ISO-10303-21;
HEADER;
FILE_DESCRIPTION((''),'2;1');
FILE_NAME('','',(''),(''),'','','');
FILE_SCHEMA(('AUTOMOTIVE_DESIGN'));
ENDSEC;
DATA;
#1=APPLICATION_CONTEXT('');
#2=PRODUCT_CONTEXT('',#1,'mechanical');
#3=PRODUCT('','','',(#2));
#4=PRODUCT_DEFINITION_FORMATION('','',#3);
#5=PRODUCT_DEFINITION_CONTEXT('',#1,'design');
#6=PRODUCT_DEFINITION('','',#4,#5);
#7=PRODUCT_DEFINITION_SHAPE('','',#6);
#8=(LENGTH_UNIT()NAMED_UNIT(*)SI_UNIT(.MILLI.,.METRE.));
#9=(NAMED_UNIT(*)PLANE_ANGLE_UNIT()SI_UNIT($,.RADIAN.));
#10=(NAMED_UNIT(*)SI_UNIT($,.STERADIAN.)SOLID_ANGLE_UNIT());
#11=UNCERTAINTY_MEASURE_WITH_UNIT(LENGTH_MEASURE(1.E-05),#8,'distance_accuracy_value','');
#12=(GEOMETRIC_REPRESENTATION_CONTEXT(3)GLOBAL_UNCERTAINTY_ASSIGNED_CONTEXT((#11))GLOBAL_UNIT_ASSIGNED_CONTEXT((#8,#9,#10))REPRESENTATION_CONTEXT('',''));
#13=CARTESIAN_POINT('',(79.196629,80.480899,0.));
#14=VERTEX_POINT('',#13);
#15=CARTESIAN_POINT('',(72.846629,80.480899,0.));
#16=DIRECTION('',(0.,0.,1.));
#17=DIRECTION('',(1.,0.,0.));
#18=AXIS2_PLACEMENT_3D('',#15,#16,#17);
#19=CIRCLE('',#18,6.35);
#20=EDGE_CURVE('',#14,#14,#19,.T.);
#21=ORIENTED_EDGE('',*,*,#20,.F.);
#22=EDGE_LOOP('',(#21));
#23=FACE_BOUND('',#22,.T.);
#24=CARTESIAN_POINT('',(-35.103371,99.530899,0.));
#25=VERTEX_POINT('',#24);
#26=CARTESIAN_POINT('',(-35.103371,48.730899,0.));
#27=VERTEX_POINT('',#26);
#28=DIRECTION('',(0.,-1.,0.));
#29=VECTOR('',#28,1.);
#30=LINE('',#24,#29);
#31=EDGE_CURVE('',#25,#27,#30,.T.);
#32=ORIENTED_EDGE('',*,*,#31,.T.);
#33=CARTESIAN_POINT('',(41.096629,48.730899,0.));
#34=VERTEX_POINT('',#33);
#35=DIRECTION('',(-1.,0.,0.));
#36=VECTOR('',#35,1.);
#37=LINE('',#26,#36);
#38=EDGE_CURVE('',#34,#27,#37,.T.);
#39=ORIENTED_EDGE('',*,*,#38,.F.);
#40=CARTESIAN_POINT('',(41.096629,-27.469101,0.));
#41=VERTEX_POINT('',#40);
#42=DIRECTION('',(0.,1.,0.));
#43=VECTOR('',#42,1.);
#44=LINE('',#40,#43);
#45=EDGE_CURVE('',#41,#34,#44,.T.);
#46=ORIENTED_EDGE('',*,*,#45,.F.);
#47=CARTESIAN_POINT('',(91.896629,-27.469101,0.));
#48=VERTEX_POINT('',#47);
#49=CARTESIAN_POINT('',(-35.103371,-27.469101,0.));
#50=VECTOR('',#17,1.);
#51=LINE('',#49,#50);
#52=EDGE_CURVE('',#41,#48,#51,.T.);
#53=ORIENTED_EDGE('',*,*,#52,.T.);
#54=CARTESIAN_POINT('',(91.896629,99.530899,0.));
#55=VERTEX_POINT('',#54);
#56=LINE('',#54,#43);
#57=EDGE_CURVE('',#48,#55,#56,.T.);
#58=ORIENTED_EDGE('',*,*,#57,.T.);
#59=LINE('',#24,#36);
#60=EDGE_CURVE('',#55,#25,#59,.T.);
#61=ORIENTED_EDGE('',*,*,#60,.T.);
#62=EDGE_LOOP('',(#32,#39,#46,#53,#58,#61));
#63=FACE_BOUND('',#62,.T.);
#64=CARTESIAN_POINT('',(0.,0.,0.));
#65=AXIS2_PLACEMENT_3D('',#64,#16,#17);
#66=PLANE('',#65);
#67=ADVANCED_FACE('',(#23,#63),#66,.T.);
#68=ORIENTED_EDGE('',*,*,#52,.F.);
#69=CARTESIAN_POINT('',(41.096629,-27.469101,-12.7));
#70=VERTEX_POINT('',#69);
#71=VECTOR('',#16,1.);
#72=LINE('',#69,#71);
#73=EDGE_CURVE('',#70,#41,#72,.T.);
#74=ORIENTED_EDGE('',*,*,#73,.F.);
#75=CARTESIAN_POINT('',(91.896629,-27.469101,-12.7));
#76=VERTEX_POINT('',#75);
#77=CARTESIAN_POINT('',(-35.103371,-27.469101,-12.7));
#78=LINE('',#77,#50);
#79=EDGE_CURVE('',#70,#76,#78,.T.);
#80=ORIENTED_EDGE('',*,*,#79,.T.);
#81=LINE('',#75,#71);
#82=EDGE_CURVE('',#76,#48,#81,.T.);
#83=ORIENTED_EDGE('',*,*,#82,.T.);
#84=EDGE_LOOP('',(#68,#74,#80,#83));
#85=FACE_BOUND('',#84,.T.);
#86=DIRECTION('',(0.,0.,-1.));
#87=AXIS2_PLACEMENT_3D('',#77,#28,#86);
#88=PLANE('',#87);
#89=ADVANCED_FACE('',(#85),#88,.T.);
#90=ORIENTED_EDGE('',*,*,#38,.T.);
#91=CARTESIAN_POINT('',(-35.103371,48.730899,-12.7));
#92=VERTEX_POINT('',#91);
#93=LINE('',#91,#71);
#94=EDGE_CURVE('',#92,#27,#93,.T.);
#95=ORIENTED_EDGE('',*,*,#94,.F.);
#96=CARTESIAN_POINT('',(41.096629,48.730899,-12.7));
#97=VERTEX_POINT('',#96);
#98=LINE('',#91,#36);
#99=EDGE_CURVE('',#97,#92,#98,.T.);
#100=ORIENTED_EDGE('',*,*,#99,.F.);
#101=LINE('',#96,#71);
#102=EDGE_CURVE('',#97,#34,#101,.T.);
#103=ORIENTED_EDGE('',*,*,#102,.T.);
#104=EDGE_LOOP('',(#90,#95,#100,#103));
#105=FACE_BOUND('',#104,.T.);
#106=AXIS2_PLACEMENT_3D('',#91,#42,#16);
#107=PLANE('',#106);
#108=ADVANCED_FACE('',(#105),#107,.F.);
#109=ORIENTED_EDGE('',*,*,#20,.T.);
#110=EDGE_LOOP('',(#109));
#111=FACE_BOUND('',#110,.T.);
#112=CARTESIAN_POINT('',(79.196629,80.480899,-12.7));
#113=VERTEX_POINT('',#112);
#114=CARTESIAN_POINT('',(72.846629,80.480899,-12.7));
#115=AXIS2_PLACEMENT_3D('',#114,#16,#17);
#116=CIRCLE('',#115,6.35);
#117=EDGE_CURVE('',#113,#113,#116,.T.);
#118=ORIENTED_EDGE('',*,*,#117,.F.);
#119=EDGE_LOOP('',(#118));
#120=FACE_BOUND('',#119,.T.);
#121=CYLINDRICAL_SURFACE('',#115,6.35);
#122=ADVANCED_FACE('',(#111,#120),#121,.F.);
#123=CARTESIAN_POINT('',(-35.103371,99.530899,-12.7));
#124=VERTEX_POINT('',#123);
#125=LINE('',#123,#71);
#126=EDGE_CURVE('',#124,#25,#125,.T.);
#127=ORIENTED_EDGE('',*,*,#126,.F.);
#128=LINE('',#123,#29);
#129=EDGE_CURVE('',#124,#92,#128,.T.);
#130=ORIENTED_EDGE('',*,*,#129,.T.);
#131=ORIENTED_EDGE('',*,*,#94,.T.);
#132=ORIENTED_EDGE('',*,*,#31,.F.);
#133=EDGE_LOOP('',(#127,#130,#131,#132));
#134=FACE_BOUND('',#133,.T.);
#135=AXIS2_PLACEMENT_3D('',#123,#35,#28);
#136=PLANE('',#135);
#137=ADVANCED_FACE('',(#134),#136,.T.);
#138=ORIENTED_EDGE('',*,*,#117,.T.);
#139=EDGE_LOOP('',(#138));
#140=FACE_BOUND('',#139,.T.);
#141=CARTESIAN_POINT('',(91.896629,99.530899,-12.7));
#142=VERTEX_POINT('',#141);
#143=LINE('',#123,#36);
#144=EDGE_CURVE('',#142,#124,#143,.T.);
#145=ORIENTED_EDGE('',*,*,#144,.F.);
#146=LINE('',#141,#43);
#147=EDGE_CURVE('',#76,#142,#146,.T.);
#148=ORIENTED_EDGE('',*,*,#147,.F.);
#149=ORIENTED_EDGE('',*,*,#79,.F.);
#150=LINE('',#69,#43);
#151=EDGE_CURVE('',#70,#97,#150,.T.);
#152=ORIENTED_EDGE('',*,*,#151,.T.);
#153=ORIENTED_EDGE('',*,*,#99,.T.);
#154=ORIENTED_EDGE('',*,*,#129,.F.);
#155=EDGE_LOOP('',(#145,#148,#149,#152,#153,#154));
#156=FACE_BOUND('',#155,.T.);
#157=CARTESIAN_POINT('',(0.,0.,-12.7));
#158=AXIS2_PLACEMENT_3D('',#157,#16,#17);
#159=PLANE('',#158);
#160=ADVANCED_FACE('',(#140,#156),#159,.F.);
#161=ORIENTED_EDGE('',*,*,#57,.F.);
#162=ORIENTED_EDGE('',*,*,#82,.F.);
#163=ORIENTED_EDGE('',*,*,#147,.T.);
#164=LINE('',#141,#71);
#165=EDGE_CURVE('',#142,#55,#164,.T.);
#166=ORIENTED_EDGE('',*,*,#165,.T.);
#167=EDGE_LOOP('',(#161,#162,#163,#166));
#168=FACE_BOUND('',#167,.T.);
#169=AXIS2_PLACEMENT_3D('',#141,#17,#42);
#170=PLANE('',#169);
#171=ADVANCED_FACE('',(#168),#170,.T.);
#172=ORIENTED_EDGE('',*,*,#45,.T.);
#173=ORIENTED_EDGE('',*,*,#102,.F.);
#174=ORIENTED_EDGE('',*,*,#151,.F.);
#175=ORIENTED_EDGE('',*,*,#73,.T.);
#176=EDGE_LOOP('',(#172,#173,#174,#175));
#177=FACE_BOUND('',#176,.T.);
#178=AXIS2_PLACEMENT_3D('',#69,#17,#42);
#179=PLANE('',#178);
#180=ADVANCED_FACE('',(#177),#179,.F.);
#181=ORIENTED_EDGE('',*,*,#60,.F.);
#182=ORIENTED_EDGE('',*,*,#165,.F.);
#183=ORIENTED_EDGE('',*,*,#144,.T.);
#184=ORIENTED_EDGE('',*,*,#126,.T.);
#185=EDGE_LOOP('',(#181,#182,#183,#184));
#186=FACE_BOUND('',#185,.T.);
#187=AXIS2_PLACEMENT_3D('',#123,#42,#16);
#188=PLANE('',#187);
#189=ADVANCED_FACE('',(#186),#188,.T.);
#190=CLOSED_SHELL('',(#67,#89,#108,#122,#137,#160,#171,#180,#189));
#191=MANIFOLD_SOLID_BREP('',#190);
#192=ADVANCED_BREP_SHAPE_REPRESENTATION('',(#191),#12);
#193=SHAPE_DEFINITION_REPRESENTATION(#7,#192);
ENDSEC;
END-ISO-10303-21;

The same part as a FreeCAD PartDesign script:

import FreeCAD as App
import Part
import Sketcher
Q = App.Units.Quantity

doc = App.newDocument("Part")
body = doc.addObject("PartDesign::Body", "Body")

# Sketch on XY plane
sketch1 = body.newObject("Sketcher::SketchObject", "Sketch")
sketch1.AttachmentSupport = (doc.getObject("XY_Plane"), [""])
sketch1.MapMode = "FlatFace"
sketch1.addGeometry([
    Part.LineSegment(App.Vector(-35, 100, 0), App.Vector(-35, -27, 0)),
    Part.LineSegment(App.Vector(-35, -27, 0), App.Vector(92, -27, 0)),
    Part.LineSegment(App.Vector(92, -27, 0), App.Vector(92, 100, 0)),
    Part.LineSegment(App.Vector(92, 100, 0), App.Vector(-35, 100, 0)),
], False)
sketch1.addConstraint([
    Sketcher.Constraint("Coincident", 0, 2, 1, 1),
    Sketcher.Constraint("Coincident", 1, 2, 2, 1),
    Sketcher.Constraint("Coincident", 2, 2, 3, 1),
    Sketcher.Constraint("Coincident", 3, 2, 0, 1),
    Sketcher.Constraint("Vertical", 0),
    Sketcher.Constraint("Horizontal", 1),
    Sketcher.Constraint("Vertical", 2),
    Sketcher.Constraint("Horizontal", 3),
    Sketcher.Constraint("Equal", 3, 0),
    Sketcher.Constraint("DistanceX", 1, 1, 1, 2, Q("5 in")),
    Sketcher.Constraint("DistanceY", 0, 2, -1, 1, Q("27.469101 mm")),
    Sketcher.Constraint("DistanceX", 0, 2, -1, 1, Q("35.103371 mm")),
])
pad1 = body.newObject("PartDesign::Pad", "Pad")
pad1.Profile = sketch1
pad1.Length = Q("0.5 in")
pad1.Reversed = True

# Sketch on XY plane
sketch2 = body.newObject("Sketcher::SketchObject", "Sketch001")
sketch2.AttachmentSupport = (doc.getObject("XY_Plane"), [""])
sketch2.MapMode = "FlatFace"
sketch2.addGeometry([
    Part.LineSegment(App.Vector(-35, 49, 0), App.Vector(-35, -27, 0)),
    Part.LineSegment(App.Vector(-35, -27, 0), App.Vector(41, -27, 0)),
    Part.LineSegment(App.Vector(41, -27, 0), App.Vector(41, 49, 0)),
    Part.LineSegment(App.Vector(41, 49, 0), App.Vector(-35, 49, 0)),
], False)
sketch2.addConstraint([
    Sketcher.Constraint("Coincident", 0, 2, 1, 1),
    Sketcher.Constraint("Coincident", 1, 2, 2, 1),
    Sketcher.Constraint("Coincident", 2, 2, 3, 1),
    Sketcher.Constraint("Coincident", 3, 2, 0, 1),
    Sketcher.Constraint("Vertical", 0),
    Sketcher.Constraint("Horizontal", 1),
    Sketcher.Constraint("Vertical", 2),
    Sketcher.Constraint("Horizontal", 3),
    Sketcher.Constraint("Equal", 3, 0),
    Sketcher.Constraint("DistanceX", 1, 1, 1, 2, Q("3 in")),
    Sketcher.Constraint("DistanceY", 0, 2, -1, 1, Q("27.469101 mm")),
    Sketcher.Constraint("DistanceX", 0, 2, -1, 1, Q("35.103371 mm")),
])
pocket1 = body.newObject("PartDesign::Pocket", "Pocket")
pocket1.Profile = sketch2
pocket1.Type = "ThroughAll"
pocket1.Midplane = True

# Sketch on XY plane
sketch3 = body.newObject("Sketcher::SketchObject", "Sketch002")
sketch3.AttachmentSupport = (doc.getObject("XY_Plane"), [""])
sketch3.MapMode = "FlatFace"
sketch3.addGeometry(Part.Circle(App.Vector(73, 80, 0), App.Vector(0, 0, 1), 6), False)
sketch3.addConstraint([
    Sketcher.Constraint("Diameter", 0, Q("0.5 in")),
    Sketcher.Constraint("DistanceY", -1, 1, 0, 3, Q("80.480899 mm")),
    Sketcher.Constraint("DistanceX", -1, 1, 0, 3, Q("72.846629 mm")),
])
pocket2 = body.newObject("PartDesign::Pocket", "Pocket001")
pocket2.Profile = sketch3
pocket2.Type = "ThroughAll"
pocket2.Midplane = True

doc.recompute()
